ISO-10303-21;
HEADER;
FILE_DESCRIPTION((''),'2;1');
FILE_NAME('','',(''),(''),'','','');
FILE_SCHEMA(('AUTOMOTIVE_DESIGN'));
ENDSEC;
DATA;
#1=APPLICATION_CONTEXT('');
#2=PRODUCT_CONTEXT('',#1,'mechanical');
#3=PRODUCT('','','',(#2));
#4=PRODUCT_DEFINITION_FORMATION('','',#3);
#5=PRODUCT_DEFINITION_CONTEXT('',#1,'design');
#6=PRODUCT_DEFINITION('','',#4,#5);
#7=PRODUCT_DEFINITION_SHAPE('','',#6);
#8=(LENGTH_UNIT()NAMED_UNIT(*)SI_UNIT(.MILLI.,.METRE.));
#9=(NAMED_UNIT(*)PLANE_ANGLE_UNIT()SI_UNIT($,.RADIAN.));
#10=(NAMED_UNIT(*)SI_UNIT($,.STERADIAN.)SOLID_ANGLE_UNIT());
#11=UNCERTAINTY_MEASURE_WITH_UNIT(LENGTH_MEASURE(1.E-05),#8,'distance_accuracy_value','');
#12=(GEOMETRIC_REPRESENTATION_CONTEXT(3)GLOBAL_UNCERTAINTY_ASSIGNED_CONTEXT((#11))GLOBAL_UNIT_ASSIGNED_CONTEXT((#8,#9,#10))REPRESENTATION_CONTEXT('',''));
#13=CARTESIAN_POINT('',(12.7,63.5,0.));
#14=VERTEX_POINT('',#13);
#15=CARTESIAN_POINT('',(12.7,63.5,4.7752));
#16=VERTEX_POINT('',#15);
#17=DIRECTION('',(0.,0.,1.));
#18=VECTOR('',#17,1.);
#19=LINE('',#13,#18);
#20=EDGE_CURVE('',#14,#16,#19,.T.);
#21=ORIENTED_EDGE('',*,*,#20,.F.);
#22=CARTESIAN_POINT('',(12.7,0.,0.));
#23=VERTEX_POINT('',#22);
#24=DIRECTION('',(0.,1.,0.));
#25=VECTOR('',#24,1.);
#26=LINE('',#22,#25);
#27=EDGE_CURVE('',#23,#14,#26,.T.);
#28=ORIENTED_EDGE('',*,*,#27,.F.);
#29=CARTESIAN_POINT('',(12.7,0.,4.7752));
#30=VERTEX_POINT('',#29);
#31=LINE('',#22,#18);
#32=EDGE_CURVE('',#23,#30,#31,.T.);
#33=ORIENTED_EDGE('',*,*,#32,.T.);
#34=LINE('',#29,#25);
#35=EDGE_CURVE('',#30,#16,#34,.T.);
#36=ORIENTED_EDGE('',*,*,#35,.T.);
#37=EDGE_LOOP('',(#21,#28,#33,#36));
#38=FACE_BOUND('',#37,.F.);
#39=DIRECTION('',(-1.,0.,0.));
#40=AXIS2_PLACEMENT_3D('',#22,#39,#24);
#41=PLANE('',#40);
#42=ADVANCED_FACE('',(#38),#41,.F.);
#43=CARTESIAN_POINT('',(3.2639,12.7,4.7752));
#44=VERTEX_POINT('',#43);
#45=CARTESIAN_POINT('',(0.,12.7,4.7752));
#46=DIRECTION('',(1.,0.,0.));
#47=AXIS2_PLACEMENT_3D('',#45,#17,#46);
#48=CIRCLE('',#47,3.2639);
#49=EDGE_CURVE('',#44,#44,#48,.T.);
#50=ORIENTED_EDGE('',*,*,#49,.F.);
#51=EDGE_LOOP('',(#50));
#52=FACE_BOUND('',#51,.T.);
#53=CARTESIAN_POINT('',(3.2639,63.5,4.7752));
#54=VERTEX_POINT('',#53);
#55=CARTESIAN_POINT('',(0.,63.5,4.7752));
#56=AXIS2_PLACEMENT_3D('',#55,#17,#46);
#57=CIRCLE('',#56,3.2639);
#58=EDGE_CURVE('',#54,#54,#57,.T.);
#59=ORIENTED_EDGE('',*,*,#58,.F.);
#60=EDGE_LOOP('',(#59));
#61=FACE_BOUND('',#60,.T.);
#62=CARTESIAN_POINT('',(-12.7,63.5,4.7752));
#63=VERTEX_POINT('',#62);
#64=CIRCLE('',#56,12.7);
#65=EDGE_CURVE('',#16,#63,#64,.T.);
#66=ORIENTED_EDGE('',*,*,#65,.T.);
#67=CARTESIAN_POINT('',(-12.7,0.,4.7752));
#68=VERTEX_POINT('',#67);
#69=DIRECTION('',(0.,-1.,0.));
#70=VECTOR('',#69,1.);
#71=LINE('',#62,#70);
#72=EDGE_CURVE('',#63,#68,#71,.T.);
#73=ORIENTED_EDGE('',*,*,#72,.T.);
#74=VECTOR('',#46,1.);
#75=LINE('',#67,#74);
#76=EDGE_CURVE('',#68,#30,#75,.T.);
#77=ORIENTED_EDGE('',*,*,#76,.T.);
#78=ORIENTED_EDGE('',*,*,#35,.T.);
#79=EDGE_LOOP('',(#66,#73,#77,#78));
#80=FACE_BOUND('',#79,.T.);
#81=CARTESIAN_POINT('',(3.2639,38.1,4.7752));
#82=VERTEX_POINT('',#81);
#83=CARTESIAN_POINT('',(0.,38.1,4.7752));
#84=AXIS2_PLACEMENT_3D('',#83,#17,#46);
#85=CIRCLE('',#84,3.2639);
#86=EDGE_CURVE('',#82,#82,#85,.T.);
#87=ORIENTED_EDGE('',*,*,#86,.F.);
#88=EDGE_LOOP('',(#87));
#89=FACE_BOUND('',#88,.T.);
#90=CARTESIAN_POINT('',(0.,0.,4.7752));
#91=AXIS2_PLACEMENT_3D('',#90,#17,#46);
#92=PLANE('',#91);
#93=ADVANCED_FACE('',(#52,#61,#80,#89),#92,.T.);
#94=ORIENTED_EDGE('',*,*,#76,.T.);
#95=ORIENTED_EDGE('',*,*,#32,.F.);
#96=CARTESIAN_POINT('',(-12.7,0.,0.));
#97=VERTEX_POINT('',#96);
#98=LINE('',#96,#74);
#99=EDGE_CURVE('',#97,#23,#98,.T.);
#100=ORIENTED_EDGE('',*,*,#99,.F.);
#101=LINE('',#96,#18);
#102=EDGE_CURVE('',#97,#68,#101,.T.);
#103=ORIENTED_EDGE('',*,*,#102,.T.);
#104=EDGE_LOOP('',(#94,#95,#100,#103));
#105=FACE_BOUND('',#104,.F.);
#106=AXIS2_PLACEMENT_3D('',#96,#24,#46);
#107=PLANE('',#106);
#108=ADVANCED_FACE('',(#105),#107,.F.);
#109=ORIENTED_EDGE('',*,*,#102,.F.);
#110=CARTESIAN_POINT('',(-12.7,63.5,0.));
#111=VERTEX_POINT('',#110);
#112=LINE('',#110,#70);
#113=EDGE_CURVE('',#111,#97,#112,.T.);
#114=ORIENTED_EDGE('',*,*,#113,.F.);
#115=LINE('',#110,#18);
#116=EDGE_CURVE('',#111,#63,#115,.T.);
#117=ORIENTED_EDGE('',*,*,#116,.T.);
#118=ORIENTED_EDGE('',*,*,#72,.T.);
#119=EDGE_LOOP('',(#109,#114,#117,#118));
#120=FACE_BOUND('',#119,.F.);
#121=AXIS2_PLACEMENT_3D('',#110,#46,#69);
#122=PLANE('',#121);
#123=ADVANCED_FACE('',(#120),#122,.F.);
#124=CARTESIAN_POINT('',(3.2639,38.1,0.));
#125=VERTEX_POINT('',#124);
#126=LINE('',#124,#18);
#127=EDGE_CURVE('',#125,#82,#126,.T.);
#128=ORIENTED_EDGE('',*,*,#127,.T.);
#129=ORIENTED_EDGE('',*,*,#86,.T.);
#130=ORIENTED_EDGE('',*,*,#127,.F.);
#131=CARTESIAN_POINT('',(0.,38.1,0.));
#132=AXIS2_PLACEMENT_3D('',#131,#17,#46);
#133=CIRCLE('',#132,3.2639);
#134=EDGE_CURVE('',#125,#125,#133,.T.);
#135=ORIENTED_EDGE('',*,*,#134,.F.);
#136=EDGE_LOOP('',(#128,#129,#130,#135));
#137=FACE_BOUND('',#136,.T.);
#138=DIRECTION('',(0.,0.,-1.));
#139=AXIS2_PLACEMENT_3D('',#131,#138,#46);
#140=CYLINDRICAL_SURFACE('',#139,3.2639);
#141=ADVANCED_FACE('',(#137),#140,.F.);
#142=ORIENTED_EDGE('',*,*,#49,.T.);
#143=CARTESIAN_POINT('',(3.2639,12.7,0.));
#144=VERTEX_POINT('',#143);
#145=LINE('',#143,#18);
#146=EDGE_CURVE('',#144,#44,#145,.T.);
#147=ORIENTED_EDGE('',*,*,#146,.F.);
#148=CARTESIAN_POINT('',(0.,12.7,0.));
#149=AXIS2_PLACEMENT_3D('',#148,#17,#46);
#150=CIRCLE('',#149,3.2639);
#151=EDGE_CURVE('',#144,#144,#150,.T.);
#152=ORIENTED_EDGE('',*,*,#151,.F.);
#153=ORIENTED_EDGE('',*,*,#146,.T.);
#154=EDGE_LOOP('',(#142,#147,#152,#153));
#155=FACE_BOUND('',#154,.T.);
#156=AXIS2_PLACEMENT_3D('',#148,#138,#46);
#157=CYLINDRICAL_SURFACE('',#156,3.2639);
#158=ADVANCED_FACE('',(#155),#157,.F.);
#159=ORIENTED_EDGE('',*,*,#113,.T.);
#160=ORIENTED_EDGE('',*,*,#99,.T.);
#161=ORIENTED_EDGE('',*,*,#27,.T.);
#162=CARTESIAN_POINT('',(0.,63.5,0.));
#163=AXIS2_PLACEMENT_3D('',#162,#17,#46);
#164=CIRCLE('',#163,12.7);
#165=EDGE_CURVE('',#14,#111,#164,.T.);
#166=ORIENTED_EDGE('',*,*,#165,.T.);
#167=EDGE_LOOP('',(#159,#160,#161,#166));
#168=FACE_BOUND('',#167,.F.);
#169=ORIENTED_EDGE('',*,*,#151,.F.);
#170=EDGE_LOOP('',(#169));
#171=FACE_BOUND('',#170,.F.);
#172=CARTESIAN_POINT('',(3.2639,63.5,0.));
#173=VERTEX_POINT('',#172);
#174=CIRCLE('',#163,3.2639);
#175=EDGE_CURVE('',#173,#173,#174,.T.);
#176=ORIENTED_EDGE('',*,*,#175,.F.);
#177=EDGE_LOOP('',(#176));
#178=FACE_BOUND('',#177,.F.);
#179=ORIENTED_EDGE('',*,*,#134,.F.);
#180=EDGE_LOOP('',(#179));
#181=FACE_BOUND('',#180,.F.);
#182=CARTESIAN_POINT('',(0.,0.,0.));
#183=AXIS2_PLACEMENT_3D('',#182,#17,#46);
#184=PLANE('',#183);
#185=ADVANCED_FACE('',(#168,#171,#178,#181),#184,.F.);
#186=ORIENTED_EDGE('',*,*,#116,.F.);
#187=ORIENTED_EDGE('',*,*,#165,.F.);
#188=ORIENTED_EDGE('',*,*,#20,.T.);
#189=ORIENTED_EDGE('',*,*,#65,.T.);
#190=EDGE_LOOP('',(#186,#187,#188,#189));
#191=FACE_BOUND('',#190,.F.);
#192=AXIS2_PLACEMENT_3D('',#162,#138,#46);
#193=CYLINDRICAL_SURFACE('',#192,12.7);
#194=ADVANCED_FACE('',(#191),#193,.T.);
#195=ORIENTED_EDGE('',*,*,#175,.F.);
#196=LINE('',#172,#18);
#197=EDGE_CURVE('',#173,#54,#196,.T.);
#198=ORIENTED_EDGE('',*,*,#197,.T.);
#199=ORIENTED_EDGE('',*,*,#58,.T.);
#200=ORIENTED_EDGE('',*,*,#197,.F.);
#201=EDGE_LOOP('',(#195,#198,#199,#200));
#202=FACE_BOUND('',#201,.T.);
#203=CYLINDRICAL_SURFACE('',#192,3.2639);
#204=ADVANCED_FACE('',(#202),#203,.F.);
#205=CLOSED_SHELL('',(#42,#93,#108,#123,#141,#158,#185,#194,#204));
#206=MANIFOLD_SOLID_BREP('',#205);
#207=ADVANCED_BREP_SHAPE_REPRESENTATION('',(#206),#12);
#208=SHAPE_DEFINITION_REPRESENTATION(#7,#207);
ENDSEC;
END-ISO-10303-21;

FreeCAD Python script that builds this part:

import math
import FreeCAD as App
import Part
import Sketcher

V = App.Vector
Q = App.Units.Quantity

doc = App.newDocument("Part")
params = doc.addObject("Spreadsheet::Sheet", "Params")
for row, (alias, value) in enumerate([
    ("sketch1_radius", "0.5 in"),
    ("sketch1_diameter", "0.257 in"),
    ("sketch1_height", "2.5 in"),
    ("pad1_length", "0.188 in"),
], start=1):
    params.set(f"A{row}", alias)
    params.set(f"B{row}", "=" + value)
    params.setAlias(f"B{row}", alias)

body = doc.addObject("PartDesign::Body", "Body")

# Sketch on XY plane
sketch1 = body.newObject("Sketcher::SketchObject", "Sketch")
sketch1.AttachmentSupport = (doc.getObject("XY_Plane"), [""])
sketch1.MapMode = "FlatFace"
sketch1.addGeometry(Part.ArcOfCircle(Part.Circle(V(0, 63.5, 0), V(0, 0, 1), 12.7), math.radians(0), math.radians(180)), False)
sketch1.addGeometry(Part.LineSegment(V(-12.7, 63.5, 0), V(-12.7, 0, 0)), False)
sketch1.addGeometry(Part.LineSegment(V(-12.7, 0, 0), V(12.7, 0, 0)), False)
sketch1.addGeometry(Part.LineSegment(V(12.7, 0, 0), V(12.7, 63.5, 0)), False)
sketch1.addGeometry(Part.Circle(V(0, 12.7, 0), V(0, 0, 1), 3.3), False)
sketch1.addGeometry(Part.Circle(V(0, 38.1, 0), V(0, 0, 1), 3.3), False)
sketch1.addGeometry(Part.Circle(V(0, 63.5, 0), V(0, 0, 1), 3.3), False)
sketch1.addConstraint(Sketcher.Constraint("Tangent", 0, 2, 1, 1))
sketch1.addConstraint(Sketcher.Constraint("Coincident", 1, 2, 2, 1))
sketch1.addConstraint(Sketcher.Constraint("Coincident", 2, 2, 3, 1))
sketch1.addConstraint(Sketcher.Constraint("Tangent", 3, 2, 0, 1))
sketch1.addConstraint(Sketcher.Constraint("Vertical", 1))
sketch1.addConstraint(Sketcher.Constraint("Horizontal", 2))
sketch1.addConstraint(Sketcher.Constraint("Vertical", 3))
sketch1.addConstraint(Sketcher.Constraint("Coincident", 6, 3, 0, 3))
sketch1.addConstraint(Sketcher.Constraint("Equal", 4, 5))
sketch1.addConstraint(Sketcher.Constraint("Equal", 5, 6))
sketch1.addConstraint(Sketcher.Constraint("Symmetric", 1, 2, 2, 2, -1, 1))
sketch1.addConstraint(Sketcher.Constraint("PointOnObject", 4, 3, -2))
sketch1.addConstraint(Sketcher.Constraint("PointOnObject", 5, 3, -2))
sketch1.addConstraint(Sketcher.Constraint("Radius", 0, Q("0.5 in")))
sketch1.addConstraint(Sketcher.Constraint("Diameter", 4, Q("0.257 in")))
sketch1.addConstraint(Sketcher.Constraint("DistanceY", 1, 2, 1, 1, Q("2.5 in")))
sketch1.addConstraint(Sketcher.Constraint("DistanceY", 4, 3, 0, 3, Q("2 in")))
sketch1.addConstraint(Sketcher.Constraint("DistanceY", 5, 3, 0, 3, Q("1 in")))
sketch1.setExpression("Constraints[13]", "Params.sketch1_radius")
sketch1.setExpression("Constraints[14]", "Params.sketch1_diameter")
sketch1.setExpression("Constraints[15]", "Params.sketch1_height")
pad1 = body.newObject("PartDesign::Pad", "Pad")
pad1.Profile = sketch1
pad1.setExpression("Length", "Params.pad1_length")

doc.recompute()
